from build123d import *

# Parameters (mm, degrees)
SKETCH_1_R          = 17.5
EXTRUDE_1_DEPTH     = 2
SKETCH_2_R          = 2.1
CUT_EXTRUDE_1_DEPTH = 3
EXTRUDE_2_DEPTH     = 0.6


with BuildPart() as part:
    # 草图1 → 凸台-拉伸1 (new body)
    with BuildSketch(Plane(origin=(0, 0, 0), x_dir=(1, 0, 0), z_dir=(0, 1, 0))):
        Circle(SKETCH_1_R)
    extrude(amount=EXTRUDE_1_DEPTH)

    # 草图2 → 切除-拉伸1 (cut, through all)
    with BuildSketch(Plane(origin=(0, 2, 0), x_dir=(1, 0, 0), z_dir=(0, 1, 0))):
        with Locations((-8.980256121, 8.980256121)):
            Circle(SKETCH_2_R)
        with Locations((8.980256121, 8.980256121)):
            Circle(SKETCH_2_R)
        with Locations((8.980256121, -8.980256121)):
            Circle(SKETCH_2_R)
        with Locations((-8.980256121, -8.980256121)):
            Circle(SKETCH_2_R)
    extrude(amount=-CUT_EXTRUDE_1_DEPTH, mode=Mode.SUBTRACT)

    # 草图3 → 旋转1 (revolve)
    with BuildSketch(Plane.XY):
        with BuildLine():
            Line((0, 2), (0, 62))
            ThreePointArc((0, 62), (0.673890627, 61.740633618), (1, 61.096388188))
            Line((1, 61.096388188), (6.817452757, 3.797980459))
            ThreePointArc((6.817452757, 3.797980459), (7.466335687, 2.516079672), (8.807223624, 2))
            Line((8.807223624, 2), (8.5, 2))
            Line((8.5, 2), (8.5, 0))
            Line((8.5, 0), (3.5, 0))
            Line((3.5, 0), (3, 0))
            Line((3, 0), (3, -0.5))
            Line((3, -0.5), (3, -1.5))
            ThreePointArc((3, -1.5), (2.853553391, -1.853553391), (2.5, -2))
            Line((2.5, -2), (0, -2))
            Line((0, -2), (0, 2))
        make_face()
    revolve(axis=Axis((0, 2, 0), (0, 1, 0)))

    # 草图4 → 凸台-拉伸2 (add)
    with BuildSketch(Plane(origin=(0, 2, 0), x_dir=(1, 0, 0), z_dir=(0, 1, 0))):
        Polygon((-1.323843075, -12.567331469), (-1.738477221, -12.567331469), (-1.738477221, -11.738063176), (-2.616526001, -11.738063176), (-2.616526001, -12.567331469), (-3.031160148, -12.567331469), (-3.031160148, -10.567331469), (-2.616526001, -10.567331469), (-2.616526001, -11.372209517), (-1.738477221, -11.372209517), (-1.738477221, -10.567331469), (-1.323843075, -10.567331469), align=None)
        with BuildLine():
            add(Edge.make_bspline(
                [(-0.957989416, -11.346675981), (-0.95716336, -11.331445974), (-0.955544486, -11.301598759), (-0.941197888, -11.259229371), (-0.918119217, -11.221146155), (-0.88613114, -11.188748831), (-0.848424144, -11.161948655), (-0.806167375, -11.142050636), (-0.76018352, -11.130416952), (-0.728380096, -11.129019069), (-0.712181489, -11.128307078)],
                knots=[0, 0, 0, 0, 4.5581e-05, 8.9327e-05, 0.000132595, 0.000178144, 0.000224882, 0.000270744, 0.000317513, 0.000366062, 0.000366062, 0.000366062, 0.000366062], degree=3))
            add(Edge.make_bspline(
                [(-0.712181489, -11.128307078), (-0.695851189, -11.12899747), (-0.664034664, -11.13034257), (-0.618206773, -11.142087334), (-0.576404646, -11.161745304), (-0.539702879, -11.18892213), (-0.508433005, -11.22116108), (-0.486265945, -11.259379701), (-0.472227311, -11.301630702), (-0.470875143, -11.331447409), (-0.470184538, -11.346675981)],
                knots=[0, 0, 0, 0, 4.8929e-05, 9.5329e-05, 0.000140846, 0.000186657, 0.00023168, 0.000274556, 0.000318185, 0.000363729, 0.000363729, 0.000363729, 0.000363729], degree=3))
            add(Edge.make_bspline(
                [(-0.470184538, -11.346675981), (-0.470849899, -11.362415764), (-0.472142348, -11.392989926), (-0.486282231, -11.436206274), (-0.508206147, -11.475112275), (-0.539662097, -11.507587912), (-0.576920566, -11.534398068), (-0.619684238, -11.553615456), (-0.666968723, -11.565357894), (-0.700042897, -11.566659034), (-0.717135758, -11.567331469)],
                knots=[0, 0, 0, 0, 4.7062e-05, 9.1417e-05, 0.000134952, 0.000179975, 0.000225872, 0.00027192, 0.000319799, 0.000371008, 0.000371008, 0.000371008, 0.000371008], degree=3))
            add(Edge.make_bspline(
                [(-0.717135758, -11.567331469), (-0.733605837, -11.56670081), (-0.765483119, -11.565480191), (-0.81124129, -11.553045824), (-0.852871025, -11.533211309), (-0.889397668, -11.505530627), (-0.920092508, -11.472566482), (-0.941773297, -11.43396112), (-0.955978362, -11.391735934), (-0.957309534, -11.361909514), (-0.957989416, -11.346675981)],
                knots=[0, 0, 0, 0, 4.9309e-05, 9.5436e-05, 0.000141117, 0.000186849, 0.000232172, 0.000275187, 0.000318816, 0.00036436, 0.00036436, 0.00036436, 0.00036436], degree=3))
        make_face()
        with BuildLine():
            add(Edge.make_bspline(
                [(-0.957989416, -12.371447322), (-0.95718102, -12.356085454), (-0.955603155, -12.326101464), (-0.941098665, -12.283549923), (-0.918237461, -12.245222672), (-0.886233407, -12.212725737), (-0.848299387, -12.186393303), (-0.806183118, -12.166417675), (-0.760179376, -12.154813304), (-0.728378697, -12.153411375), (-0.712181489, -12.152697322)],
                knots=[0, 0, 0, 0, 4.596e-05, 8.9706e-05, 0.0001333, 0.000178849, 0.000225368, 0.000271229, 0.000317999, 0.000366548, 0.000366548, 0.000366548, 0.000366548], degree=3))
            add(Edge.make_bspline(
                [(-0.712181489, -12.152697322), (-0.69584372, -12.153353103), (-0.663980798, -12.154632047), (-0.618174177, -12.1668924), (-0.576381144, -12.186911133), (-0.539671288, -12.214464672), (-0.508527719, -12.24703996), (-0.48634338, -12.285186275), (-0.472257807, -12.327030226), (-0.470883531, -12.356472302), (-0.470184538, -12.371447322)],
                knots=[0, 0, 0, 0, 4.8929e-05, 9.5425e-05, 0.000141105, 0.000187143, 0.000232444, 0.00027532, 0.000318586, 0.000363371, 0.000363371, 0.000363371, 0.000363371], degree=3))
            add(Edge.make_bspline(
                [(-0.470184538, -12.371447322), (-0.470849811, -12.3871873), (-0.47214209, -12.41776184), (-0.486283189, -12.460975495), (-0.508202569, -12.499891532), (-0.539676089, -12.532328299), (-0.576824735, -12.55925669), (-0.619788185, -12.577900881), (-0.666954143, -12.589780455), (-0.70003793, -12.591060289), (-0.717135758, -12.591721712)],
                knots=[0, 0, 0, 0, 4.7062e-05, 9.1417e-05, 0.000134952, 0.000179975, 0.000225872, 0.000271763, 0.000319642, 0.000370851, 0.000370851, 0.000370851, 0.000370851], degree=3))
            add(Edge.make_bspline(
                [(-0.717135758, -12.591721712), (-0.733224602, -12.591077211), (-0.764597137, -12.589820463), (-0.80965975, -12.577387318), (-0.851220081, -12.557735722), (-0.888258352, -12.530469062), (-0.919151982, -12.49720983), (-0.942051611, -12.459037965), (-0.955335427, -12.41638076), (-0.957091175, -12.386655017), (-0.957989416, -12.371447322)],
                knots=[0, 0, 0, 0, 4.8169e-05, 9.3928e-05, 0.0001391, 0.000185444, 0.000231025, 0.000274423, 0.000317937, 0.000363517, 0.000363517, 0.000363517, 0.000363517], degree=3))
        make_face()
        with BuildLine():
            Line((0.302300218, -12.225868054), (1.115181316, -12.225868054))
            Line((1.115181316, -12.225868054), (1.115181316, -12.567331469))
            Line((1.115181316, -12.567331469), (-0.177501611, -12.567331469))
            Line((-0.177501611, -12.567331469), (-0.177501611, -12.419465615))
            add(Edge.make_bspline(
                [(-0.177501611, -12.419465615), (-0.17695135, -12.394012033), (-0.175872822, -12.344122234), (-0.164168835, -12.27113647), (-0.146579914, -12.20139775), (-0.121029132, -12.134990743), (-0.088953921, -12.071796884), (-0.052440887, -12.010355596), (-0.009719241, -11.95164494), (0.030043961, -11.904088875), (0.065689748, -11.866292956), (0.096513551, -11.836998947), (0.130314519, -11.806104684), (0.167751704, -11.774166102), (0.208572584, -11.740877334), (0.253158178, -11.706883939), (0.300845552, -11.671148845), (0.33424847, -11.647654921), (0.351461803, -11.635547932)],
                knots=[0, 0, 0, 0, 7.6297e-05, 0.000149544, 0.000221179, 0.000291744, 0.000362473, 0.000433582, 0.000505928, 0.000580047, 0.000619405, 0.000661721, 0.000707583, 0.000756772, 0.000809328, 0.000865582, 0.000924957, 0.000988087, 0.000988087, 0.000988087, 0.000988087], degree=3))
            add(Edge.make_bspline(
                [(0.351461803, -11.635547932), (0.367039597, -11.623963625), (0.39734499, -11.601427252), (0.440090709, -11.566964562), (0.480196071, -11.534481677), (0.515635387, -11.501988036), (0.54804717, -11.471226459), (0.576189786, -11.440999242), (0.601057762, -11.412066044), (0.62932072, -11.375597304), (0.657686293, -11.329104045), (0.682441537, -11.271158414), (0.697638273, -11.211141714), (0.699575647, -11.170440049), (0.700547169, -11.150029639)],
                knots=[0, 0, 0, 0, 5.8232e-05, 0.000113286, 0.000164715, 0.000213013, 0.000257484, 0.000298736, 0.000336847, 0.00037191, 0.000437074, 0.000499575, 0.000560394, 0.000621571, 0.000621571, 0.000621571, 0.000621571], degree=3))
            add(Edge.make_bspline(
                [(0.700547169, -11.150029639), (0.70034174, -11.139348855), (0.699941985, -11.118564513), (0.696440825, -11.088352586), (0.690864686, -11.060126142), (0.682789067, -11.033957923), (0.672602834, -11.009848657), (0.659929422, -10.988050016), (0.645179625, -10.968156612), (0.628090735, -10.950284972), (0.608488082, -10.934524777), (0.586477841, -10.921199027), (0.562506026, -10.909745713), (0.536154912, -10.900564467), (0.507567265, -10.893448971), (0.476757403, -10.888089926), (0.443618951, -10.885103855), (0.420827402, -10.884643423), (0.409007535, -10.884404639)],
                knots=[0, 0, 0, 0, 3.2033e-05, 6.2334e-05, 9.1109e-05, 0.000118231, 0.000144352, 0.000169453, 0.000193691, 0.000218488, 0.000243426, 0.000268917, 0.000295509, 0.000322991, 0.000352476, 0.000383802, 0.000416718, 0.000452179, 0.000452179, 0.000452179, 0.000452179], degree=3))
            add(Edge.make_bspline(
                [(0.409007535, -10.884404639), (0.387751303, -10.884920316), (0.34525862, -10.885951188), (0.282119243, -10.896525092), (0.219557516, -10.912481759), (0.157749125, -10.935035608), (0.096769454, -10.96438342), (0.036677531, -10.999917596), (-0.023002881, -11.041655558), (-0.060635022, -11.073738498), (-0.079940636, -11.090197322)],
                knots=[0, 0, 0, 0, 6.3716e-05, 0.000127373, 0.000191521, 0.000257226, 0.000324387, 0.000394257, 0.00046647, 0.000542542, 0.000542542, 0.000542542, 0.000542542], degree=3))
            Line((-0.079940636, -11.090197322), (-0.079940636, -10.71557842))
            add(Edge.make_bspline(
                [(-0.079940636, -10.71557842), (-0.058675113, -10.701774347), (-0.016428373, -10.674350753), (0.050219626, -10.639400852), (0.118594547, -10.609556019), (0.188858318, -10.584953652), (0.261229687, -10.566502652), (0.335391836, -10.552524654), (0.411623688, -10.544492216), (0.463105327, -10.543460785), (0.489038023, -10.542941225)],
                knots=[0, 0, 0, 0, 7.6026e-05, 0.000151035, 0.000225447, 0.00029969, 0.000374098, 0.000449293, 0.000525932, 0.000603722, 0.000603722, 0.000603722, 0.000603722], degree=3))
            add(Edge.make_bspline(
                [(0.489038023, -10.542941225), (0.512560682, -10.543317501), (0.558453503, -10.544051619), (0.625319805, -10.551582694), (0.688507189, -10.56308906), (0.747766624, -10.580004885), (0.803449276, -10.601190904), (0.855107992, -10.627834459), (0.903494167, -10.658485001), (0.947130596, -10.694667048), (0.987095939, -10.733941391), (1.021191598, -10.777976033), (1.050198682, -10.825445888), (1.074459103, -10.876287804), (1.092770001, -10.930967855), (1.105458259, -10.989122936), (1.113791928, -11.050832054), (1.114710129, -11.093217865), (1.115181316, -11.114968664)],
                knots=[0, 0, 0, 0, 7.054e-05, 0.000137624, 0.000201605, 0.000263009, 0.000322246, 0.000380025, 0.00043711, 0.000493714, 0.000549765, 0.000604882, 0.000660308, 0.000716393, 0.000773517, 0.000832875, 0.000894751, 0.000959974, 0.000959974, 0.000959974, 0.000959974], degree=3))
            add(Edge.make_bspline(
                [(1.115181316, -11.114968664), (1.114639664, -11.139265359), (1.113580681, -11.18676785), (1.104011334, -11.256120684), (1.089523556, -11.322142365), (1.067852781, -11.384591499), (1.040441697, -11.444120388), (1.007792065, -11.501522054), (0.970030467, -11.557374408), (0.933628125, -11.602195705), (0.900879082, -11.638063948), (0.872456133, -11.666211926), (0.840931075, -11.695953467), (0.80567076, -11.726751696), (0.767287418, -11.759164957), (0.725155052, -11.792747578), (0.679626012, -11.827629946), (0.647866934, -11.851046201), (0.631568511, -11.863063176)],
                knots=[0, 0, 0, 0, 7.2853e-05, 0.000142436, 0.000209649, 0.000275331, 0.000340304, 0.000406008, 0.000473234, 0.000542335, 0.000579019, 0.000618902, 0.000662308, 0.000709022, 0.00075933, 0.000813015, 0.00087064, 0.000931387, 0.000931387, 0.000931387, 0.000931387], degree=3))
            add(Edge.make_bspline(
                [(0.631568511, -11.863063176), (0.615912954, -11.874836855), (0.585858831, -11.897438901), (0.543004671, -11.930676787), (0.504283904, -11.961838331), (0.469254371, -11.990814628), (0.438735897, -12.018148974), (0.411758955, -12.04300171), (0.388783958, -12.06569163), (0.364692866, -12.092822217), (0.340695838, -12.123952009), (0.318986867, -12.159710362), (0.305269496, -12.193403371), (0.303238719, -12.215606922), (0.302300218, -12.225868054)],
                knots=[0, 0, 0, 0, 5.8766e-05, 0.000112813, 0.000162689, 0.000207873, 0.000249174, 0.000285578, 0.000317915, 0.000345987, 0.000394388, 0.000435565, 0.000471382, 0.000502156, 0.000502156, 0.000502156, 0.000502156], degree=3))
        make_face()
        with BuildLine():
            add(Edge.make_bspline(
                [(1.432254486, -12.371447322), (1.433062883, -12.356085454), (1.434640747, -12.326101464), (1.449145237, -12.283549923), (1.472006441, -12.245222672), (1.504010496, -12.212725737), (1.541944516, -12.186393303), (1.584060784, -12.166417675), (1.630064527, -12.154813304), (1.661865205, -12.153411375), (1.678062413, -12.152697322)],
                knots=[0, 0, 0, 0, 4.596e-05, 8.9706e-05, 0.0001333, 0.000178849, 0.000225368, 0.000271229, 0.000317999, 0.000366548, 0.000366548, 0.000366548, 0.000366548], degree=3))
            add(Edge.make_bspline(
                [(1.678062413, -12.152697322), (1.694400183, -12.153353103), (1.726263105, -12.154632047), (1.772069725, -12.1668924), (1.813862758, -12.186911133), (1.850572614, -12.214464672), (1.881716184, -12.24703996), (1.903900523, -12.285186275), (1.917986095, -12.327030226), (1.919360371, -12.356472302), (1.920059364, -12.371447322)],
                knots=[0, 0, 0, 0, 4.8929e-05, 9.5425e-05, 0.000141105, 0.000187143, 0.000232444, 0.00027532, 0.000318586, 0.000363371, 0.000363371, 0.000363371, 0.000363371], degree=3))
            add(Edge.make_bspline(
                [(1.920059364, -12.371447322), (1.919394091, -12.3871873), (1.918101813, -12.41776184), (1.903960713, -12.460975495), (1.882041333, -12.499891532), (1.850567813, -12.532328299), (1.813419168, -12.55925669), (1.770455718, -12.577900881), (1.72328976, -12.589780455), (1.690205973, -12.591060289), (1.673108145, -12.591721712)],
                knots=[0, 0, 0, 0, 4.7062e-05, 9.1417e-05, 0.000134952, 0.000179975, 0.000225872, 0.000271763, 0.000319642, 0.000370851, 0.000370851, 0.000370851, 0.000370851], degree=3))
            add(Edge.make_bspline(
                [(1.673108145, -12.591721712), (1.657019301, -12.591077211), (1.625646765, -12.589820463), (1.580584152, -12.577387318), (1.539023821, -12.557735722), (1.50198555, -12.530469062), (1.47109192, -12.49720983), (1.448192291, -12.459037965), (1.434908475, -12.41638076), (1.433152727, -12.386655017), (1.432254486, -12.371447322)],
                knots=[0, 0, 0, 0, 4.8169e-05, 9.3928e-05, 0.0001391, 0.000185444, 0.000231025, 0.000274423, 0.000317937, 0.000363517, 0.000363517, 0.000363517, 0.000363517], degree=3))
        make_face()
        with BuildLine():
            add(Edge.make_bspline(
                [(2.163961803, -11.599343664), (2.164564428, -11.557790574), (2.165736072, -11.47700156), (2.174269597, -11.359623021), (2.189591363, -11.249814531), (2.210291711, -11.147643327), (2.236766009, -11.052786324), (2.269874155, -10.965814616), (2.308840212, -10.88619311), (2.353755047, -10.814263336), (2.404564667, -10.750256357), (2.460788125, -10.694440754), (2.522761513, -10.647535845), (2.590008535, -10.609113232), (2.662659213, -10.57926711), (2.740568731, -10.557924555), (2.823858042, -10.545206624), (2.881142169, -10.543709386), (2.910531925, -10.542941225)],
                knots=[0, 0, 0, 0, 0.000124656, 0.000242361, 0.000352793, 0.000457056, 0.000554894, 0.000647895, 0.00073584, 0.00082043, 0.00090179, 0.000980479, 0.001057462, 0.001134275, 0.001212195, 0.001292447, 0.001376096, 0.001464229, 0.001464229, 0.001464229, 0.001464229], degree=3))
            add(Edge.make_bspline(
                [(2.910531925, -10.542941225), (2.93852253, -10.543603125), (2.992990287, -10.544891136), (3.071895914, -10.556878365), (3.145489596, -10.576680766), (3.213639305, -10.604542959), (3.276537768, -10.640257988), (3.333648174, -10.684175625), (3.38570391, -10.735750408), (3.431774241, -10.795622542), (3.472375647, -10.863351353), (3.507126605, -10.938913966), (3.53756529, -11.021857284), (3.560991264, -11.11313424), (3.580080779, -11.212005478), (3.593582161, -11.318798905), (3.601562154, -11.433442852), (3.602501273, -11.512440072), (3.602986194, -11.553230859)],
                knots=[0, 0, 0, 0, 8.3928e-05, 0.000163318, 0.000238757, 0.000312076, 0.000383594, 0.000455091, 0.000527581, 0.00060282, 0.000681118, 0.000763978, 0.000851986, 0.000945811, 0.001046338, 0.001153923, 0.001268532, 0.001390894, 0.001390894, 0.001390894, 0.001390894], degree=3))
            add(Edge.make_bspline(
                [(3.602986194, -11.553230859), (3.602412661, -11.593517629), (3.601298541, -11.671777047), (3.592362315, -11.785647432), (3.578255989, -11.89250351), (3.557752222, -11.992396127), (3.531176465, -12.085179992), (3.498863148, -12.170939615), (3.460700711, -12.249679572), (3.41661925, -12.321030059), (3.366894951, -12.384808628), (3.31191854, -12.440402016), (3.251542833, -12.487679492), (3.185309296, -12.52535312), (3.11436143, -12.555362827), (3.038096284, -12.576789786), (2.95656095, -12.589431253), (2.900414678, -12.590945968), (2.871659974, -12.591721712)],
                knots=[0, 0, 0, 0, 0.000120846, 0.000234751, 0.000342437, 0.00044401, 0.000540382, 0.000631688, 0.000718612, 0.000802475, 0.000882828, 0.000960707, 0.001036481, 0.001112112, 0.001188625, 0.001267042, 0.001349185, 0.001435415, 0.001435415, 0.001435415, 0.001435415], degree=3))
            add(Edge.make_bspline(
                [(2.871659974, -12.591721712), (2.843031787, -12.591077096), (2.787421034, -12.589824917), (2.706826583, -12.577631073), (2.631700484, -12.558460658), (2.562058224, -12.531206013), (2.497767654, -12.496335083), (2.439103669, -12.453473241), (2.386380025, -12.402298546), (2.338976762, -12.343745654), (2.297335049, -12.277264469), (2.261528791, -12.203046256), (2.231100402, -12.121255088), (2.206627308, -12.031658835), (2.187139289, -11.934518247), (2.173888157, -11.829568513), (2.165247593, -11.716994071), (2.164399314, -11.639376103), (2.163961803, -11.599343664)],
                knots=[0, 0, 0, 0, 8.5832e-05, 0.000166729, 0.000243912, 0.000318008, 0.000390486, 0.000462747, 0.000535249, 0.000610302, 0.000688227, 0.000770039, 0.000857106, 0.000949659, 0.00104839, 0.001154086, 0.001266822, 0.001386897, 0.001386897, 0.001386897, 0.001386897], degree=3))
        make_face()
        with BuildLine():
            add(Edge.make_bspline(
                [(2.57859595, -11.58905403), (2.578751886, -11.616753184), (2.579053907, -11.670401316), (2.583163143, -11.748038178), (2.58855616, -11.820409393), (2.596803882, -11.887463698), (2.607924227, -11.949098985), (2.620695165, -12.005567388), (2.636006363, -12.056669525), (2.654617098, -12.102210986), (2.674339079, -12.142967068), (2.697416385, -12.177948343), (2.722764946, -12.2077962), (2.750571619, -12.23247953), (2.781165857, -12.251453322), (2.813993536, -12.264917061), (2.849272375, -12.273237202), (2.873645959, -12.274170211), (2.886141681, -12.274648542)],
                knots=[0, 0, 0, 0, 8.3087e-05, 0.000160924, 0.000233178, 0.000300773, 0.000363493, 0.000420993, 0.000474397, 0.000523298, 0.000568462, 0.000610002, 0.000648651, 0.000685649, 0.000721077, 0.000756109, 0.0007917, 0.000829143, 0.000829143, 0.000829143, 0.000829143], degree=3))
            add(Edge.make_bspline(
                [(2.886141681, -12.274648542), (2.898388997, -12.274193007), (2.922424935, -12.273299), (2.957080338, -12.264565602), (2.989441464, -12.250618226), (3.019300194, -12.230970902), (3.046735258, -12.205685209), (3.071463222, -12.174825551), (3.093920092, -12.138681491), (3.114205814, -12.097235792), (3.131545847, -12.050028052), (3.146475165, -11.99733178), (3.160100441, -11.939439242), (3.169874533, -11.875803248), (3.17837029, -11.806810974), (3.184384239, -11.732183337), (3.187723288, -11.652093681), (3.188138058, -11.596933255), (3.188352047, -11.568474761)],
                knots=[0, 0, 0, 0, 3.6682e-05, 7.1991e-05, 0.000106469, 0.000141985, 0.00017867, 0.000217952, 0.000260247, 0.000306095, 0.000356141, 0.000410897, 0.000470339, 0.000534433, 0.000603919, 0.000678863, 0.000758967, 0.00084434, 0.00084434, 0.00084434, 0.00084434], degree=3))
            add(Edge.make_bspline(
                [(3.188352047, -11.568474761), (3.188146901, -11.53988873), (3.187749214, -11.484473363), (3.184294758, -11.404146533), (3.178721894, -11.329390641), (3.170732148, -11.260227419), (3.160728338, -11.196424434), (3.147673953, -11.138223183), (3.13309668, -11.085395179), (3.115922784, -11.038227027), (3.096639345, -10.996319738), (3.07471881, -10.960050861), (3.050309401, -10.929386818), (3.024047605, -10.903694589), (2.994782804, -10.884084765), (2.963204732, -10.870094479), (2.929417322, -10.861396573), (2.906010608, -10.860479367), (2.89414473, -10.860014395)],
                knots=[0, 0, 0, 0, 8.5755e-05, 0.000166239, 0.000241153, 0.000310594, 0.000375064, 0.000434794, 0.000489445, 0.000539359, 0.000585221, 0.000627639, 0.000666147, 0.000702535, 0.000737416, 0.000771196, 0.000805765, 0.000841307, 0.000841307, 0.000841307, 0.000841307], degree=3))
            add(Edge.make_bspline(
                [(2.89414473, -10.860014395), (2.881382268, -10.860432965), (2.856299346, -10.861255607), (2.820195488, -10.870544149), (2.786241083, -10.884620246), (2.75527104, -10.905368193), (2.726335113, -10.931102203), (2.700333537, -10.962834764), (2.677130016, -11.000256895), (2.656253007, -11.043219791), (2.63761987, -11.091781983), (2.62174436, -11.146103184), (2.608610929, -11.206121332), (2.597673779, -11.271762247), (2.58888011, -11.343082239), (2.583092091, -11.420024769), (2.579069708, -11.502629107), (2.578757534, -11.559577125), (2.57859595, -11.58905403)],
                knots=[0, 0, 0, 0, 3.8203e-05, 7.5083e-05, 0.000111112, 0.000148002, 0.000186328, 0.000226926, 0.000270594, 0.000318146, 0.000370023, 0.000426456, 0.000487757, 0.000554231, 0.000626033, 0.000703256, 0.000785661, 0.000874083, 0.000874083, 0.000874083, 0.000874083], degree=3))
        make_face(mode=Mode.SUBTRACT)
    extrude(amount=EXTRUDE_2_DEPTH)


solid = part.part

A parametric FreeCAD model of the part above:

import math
import FreeCAD as App
import Part
import Sketcher

V = App.Vector


def add_polygon(sketch, points):
    """Adds a closed chain of lines whose ends are joined by coincident constraints."""
    first, n = sketch.GeometryCount, len(points)
    for a, b in zip(points, points[1:] + points[:1]):
        sketch.addGeometry(Part.LineSegment(App.Vector(*a, 0), App.Vector(*b, 0)), False)
    for i in range(n):
        sketch.addConstraint(Sketcher.Constraint("Coincident", first + i, 2, first + (i + 1) % n, 1))

doc = App.newDocument("Part")
params = doc.addObject("Spreadsheet::Sheet", "Params")
for row, (alias, value) in enumerate([
    ("sketch1_diameter", "35 mm"),
    ("pad1_length", "2 mm"),
    ("sketch2_diameter", "4.2 mm"),
    ("sketch3_radius", "2 mm"),
    ("sketch3_radius2", "0.5 mm"),
    ("sketch3_height", "64 mm"),
    ("sketch3_height2", "2 mm"),
    ("sketch3_width", "2.5 mm"),
    ("revolution_angle", "360 deg"),
    ("sketch4_height", "2 mm"),
    ("pad2_length", "0.6 mm"),
], start=1):
    params.set(f"A{row}", alias)
    params.set(f"B{row}", "=" + value)
    params.setAlias(f"B{row}", alias)

body = doc.addObject("PartDesign::Body", "Body")

sketch1 = body.newObject("Sketcher::SketchObject", "Sketch")
sketch1.AttachmentSupport = (doc.getObject("XZ_Plane"), [""])
sketch1.MapMode = "FlatFace"
sketch1.addGeometry(Part.Circle(V(0, 0, 0), V(0, 0, 1), 17.5), False)
sketch1.addConstraint([
    Sketcher.Constraint("Coincident", 0, 3, -1, 1),
    Sketcher.Constraint("Diameter", 0, 35.0),
])
sketch1.setExpression("Constraints[1]", "Params.sketch1_diameter")
pad1 = body.newObject("PartDesign::Pad", "Pad")
pad1.Profile = sketch1
pad1.setExpression("Length", "Params.pad1_length")
pad1.Reversed = True

sketch2 = body.newObject("Sketcher::SketchObject", "Sketch001")
sketch2.AttachmentSupport = (doc.getObject("XZ_Plane"), [""])
sketch2.MapMode = "FlatFace"
sketch2.AttachmentOffset = App.Placement(V(0, 0, -2), App.Rotation())
sketch2.addGeometry([
    Part.Circle(V(-8.980256, -8.980256, 0), V(0, 0, 1), 2.1),
    Part.Circle(V(8.980256, -8.980256, 0), V(0, 0, 1), 2.1),
    Part.Circle(V(8.980256, 8.980256, 0), V(0, 0, 1), 2.1),
    Part.Circle(V(-8.980256, 8.980256, 0), V(0, 0, 1), 2.1),
], False)
sketch2.addConstraint([
    Sketcher.Constraint("Equal", 0, 1),
    Sketcher.Constraint("Equal", 1, 2),
    Sketcher.Constraint("Equal", 2, 3),
    Sketcher.Constraint("Symmetric", 0, 3, 2, 3, -1, 1),
    Sketcher.Constraint("Symmetric", 1, 3, 3, 3, -1, 1),
    Sketcher.Constraint("Symmetric", 0, 3, 1, 3, -2),
    Sketcher.Constraint("Diameter", 0, 4.2),
    Sketcher.Constraint("DistanceX", 0, 3, -1, 1, 8.980256),
    Sketcher.Constraint("DistanceY", 0, 3, -1, 1, 8.980256),
])
sketch2.setExpression("Constraints[6]", "Params.sketch2_diameter")
pocket1 = body.newObject("PartDesign::Pocket", "Pocket")
pocket1.Profile = sketch2
pocket1.Type = "ThroughAll"
pocket1.Reversed = True

sketch3 = body.newObject("Sketcher::SketchObject", "Sketch002")
sketch3.AttachmentSupport = (doc.getObject("XY_Plane"), [""])
sketch3.MapMode = "FlatFace"
sketch3.addGeometry([
    Part.ArcOfCircle(Part.Circle(V(0, 60.994859, 0), V(0, 0, 1), 1.005141), math.radians(5.79732), math.radians(90)),
    Part.LineSegment(V(0, 62, 0), V(0, -2, 0)),
    Part.LineSegment(V(0, -2, 0), V(2.5, -2, 0)),
    Part.ArcOfCircle(Part.Circle(V(2.5, -1.5, 0), V(0, 0, 1), 0.5), math.radians(-90), math.radians(0)),
    Part.LineSegment(V(3, -1.5, 0), V(3, 0, 0)),
    Part.LineSegment(V(3, 0, 0), V(8.5, 0, 0)),
    Part.LineSegment(V(8.5, 0, 0), V(8.5, 2, 0)),
    Part.LineSegment(V(8.5, 2, 0), V(8.807224, 2, 0)),
    Part.ArcOfCircle(Part.Circle(V(8.807224, 4, 0), V(0, 0, 1), 2), math.radians(-174.20268), math.radians(-90)),
    Part.LineSegment(V(6.817453, 3.79798, 0), V(1, 61.096388, 0)),
], False)
sketch3.addConstraint([
    Sketcher.Constraint("Coincident", 0, 2, 1, 1),
    Sketcher.Constraint("Coincident", 1, 2, 2, 1),
    Sketcher.Constraint("Tangent", 2, 2, 3, 1),
    Sketcher.Constraint("Tangent", 3, 2, 4, 1),
    Sketcher.Constraint("Coincident", 4, 2, 5, 1),
    Sketcher.Constraint("Coincident", 5, 2, 6, 1),
    Sketcher.Constraint("Coincident", 6, 2, 7, 1),
    Sketcher.Constraint("Tangent", 7, 2, 8, 2),
    Sketcher.Constraint("Tangent", 8, 1, 9, 1),
    Sketcher.Constraint("Tangent", 9, 2, 0, 1),
    Sketcher.Constraint("Vertical", 1),
    Sketcher.Constraint("Horizontal", 2),
    Sketcher.Constraint("Vertical", 4),
    Sketcher.Constraint("Horizontal", 5),
    Sketcher.Constraint("Vertical", 6),
    Sketcher.Constraint("Horizontal", 7),
    Sketcher.Constraint("PointOnObject", 0, 3, -2),
    Sketcher.Constraint("PointOnObject", 0, 2, -2),
    Sketcher.Constraint("PointOnObject", 4, 2, -1),
    Sketcher.Constraint("Radius", 8, 2.0),
    Sketcher.Constraint("Radius", 3, 0.5),
    Sketcher.Constraint("DistanceY", 1, 2, 1, 1, 64.0),
    Sketcher.Constraint("DistanceY", 6, 1, 6, 2, 2.0),
    Sketcher.Constraint("DistanceX", 2, 1, 2, 2, 2.5),
    Sketcher.Constraint("DistanceX", 5, 1, 5, 2, 5.5),
    Sketcher.Constraint("DistanceY", 4, 1, 4, 2, 1.5),
    Sketcher.Constraint("DistanceX", -1, 1, 9, 2, 1.0),
    Sketcher.Constraint("Distance", 9, 57.592971),
])
sketch3.setExpression("Constraints[19]", "Params.sketch3_radius")
sketch3.setExpression("Constraints[20]", "Params.sketch3_radius2")
sketch3.setExpression("Constraints[21]", "Params.sketch3_height")
sketch3.setExpression("Constraints[22]", "Params.sketch3_height2")
sketch3.setExpression("Constraints[23]", "Params.sketch3_width")
revolution = body.newObject("PartDesign::Revolution", "Revolution")
revolution.Profile = sketch3
revolution.ReferenceAxis = (sketch3, ["V_Axis"])
revolution.setExpression("Angle", "Params.revolution_angle")

sketch4 = body.newObject("Sketcher::SketchObject", "Sketch003")
sketch4.AttachmentSupport = (doc.getObject("XZ_Plane"), [""])
sketch4.MapMode = "FlatFace"
sketch4.AttachmentOffset = App.Placement(V(0, 0, -2), App.Rotation())
add_polygon(sketch4, [(-1.738477, 12.567331), (-1.323843, 12.567331), (-1.323843, 10.567331), (-1.738477, 10.567331), (-1.738477, 11.37221), (-2.616526, 11.37221), (-2.616526, 10.567331), (-3.03116, 10.567331), (-3.03116, 12.567331), (-2.616526, 12.567331), (-2.616526, 11.738063), (-1.738477, 11.738063)])
sketch4.addGeometry(Part.BSplineCurve([V(-0.957989, 11.346676, 0), V(-0.957163, 11.331446, 0), V(-0.955544, 11.301599, 0), V(-0.941198, 11.259229, 0), V(-0.918119, 11.221146, 0), V(-0.886131, 11.188749, 0), V(-0.848424, 11.161949, 0), V(-0.806167, 11.142051, 0), V(-0.760184, 11.130417, 0), V(-0.72838, 11.129019, 0), V(-0.712181, 11.128307, 0)], [4, 1, 1, 1, 1, 1, 1, 1, 4], [0, 0.000045581, 0.000089327, 0.000132595, 0.000178144, 0.000224882, 0.000270744, 0.000317513, 0.000366062], False, 3, [1, 1, 1, 1, 1, 1, 1, 1, 1, 1, 1], False), False)
sketch4.addGeometry(Part.BSplineCurve([V(-0.717136, 11.567331, 0), V(-0.733606, 11.566701, 0), V(-0.765483, 11.56548, 0), V(-0.811241, 11.553046, 0), V(-0.852871, 11.533211, 0), V(-0.889398, 11.505531, 0), V(-0.920093, 11.472566, 0), V(-0.941773, 11.433961, 0), V(-0.955978, 11.391736, 0), V(-0.95731, 11.36191, 0), V(-0.957989, 11.346676, 0)], [4, 1, 1, 1, 1, 1, 1, 1, 4], [0, 0.000049309, 0.000095436, 0.000141117, 0.000186849, 0.000232172, 0.000275187, 0.000318816, 0.00036436], False, 3, [1, 1, 1, 1, 1, 1, 1, 1, 1, 1, 1], False), False)
sketch4.addGeometry(Part.BSplineCurve([V(-0.470185, 11.346676, 0), V(-0.47085, 11.362416, 0), V(-0.472142, 11.39299, 0), V(-0.486282, 11.436206, 0), V(-0.508206, 11.475112, 0), V(-0.539662, 11.507588, 0), V(-0.576921, 11.534398, 0), V(-0.619684, 11.553615, 0), V(-0.666969, 11.565358, 0), V(-0.700043, 11.566659, 0), V(-0.717136, 11.567331, 0)], [4, 1, 1, 1, 1, 1, 1, 1, 4], [0, 0.000047062, 0.000091417, 0.000134952, 0.000179975, 0.000225872, 0.00027192, 0.000319799, 0.000371008], False, 3, [1, 1, 1, 1, 1, 1, 1, 1, 1, 1, 1], False), False)
sketch4.addGeometry(Part.BSplineCurve([V(-0.712181, 11.128307, 0), V(-0.695851, 11.128997, 0), V(-0.664035, 11.130343, 0), V(-0.618207, 11.142087, 0), V(-0.576405, 11.161745, 0), V(-0.539703, 11.188922, 0), V(-0.508433, 11.221161, 0), V(-0.486266, 11.25938, 0), V(-0.472227, 11.301631, 0), V(-0.470875, 11.331447, 0), V(-0.470185, 11.346676, 0)], [4, 1, 1, 1, 1, 1, 1, 1, 4], [0, 0.000048929, 0.000095329, 0.000140846, 0.000186657, 0.00023168, 0.000274556, 0.000318185, 0.000363729], False, 3, [1, 1, 1, 1, 1, 1, 1, 1, 1, 1, 1], False), False)
sketch4.addGeometry(Part.BSplineCurve([V(-0.957989, 12.371447, 0), V(-0.957181, 12.356085, 0), V(-0.955603, 12.326101, 0), V(-0.941099, 12.28355, 0), V(-0.918237, 12.245223, 0), V(-0.886233, 12.212726, 0), V(-0.848299, 12.186393, 0), V(-0.806183, 12.166418, 0), V(-0.760179, 12.154813, 0), V(-0.728379, 12.153411, 0), V(-0.712181, 12.152697, 0)], [4, 1, 1, 1, 1, 1, 1, 1, 4], [0, 0.00004596, 0.000089706, 0.0001333, 0.000178849, 0.000225368, 0.000271229, 0.000317999, 0.000366548], False, 3, [1, 1, 1, 1, 1, 1, 1, 1, 1, 1, 1], False), False)
sketch4.addGeometry(Part.BSplineCurve([V(-0.717136, 12.591722, 0), V(-0.733225, 12.591077, 0), V(-0.764597, 12.58982, 0), V(-0.80966, 12.577387, 0), V(-0.85122, 12.557736, 0), V(-0.888258, 12.530469, 0), V(-0.919152, 12.49721, 0), V(-0.942052, 12.459038, 0), V(-0.955335, 12.416381, 0), V(-0.957091, 12.386655, 0), V(-0.957989, 12.371447, 0)], [4, 1, 1, 1, 1, 1, 1, 1, 4], [0, 0.000048169, 0.000093928, 0.0001391, 0.000185444, 0.000231025, 0.000274423, 0.000317937, 0.000363517], False, 3, [1, 1, 1, 1, 1, 1, 1, 1, 1, 1, 1], False), False)
sketch4.addGeometry(Part.BSplineCurve([V(-0.470185, 12.371447, 0), V(-0.47085, 12.387187, 0), V(-0.472142, 12.417762, 0), V(-0.486283, 12.460975, 0), V(-0.508203, 12.499892, 0), V(-0.539676, 12.532328, 0), V(-0.576825, 12.559257, 0), V(-0.619788, 12.577901, 0), V(-0.666954, 12.58978, 0), V(-0.700038, 12.59106, 0), V(-0.717136, 12.591722, 0)], [4, 1, 1, 1, 1, 1, 1, 1, 4], [0, 0.000047062, 0.000091417, 0.000134952, 0.000179975, 0.000225872, 0.000271763, 0.000319642, 0.000370851], False, 3, [1, 1, 1, 1, 1, 1, 1, 1, 1, 1, 1], False), False)
sketch4.addGeometry(Part.BSplineCurve([V(-0.712181, 12.152697, 0), V(-0.695844, 12.153353, 0), V(-0.663981, 12.154632, 0), V(-0.618174, 12.166892, 0), V(-0.576381, 12.186911, 0), V(-0.539671, 12.214465, 0), V(-0.508528, 12.24704, 0), V(-0.486343, 12.285186, 0), V(-0.472258, 12.32703, 0), V(-0.470884, 12.356472, 0), V(-0.470185, 12.371447, 0)], [4, 1, 1, 1, 1, 1, 1, 1, 4], [0, 0.000048929, 0.000095425, 0.000141105, 0.000187143, 0.000232444, 0.00027532, 0.000318586, 0.000363371], False, 3, [1, 1, 1, 1, 1, 1, 1, 1, 1, 1, 1], False), False)
sketch4.addGeometry(Part.LineSegment(V(1.115181, 12.225868, 0), V(0.3023, 12.225868, 0)), False)
sketch4.addGeometry(Part.BSplineCurve([V(0.631569, 11.863063, 0), V(0.615913, 11.874837, 0), V(0.585859, 11.897439, 0), V(0.543005, 11.930677, 0), V(0.504284, 11.961838, 0), V(0.469254, 11.990815, 0), V(0.438736, 12.018149, 0), V(0.411759, 12.043002, 0), V(0.388784, 12.065692, 0), V(0.364693, 12.092822, 0), V(0.340696, 12.123952, 0), V(0.318987, 12.15971, 0), V(0.305269, 12.193403, 0), V(0.303239, 12.215607, 0), V(0.3023, 12.225868, 0)], [4, 1, 1, 1, 1, 1, 1, 1, 1, 1, 1, 1, 4], [0, 0.000058766, 0.000112813, 0.000162689, 0.000207873, 0.000249174, 0.000285578, 0.000317915, 0.000345987, 0.000394388, 0.000435565, 0.000471382, 0.000502156], False, 3, [1, 1, 1, 1, 1, 1, 1, 1, 1, 1, 1, 1, 1, 1, 1], False), False)
sketch4.addGeometry(Part.BSplineCurve([V(1.115181, 11.114969, 0), V(1.11464, 11.139265, 0), V(1.113581, 11.186768, 0), V(1.104011, 11.256121, 0), V(1.089524, 11.322142, 0), V(1.067853, 11.384591, 0), V(1.040442, 11.44412, 0), V(1.007792, 11.501522, 0), V(0.97003, 11.557374, 0), V(0.933628, 11.602196, 0), V(0.900879, 11.638064, 0), V(0.872456, 11.666212, 0), V(0.840931, 11.695953, 0), V(0.805671, 11.726752, 0), V(0.767287, 11.759165, 0), V(0.725155, 11.792748, 0), V(0.679626, 11.82763, 0), V(0.647867, 11.851046, 0), V(0.631569, 11.863063, 0)], [4, 1, 1, 1, 1, 1, 1, 1, 1, 1, 1, 1, 1, 1, 1, 1, 4], [0, 0.000072853, 0.000142436, 0.000209649, 0.000275331, 0.000340304, 0.000406008, 0.000473234, 0.000542335, 0.000579019, 0.000618902, 0.000662308, 0.000709022, 0.00075933, 0.000813015, 0.00087064, 0.000931387], False, 3, [1, 1, 1, 1, 1, 1, 1, 1, 1, 1, 1, 1, 1, 1, 1, 1, 1, 1, 1], False), False)
sketch4.addGeometry(Part.BSplineCurve([V(0.489038, 10.542941, 0), V(0.512561, 10.543318, 0), V(0.558454, 10.544052, 0), V(0.62532, 10.551583, 0), V(0.688507, 10.563089, 0), V(0.747767, 10.580005, 0), V(0.803449, 10.601191, 0), V(0.855108, 10.627834, 0), V(0.903494, 10.658485, 0), V(0.947131, 10.694667, 0), V(0.987096, 10.733941, 0), V(1.021192, 10.777976, 0), V(1.050199, 10.825446, 0), V(1.074459, 10.876288, 0), V(1.09277, 10.930968, 0), V(1.105458, 10.989123, 0), V(1.113792, 11.050832, 0), V(1.11471, 11.093218, 0), V(1.115181, 11.114969, 0)], [4, 1, 1, 1, 1, 1, 1, 1, 1, 1, 1, 1, 1, 1, 1, 1, 4], [0, 0.00007054, 0.000137624, 0.000201605, 0.000263009, 0.000322246, 0.000380025, 0.00043711, 0.000493714, 0.000549765, 0.000604882, 0.000660308, 0.000716393, 0.000773517, 0.000832875, 0.000894751, 0.000959974], False, 3, [1, 1, 1, 1, 1, 1, 1, 1, 1, 1, 1, 1, 1, 1, 1, 1, 1, 1, 1], False), False)
sketch4.addGeometry(Part.BSplineCurve([V(-0.079941, 10.715578, 0), V(-0.058675, 10.701774, 0), V(-0.016428, 10.674351, 0), V(0.05022, 10.639401, 0), V(0.118595, 10.609556, 0), V(0.188858, 10.584954, 0), V(0.26123, 10.566503, 0), V(0.335392, 10.552525, 0), V(0.411624, 10.544492, 0), V(0.463105, 10.543461, 0), V(0.489038, 10.542941, 0)], [4, 1, 1, 1, 1, 1, 1, 1, 4], [0, 0.000076026, 0.000151035, 0.000225447, 0.00029969, 0.000374098, 0.000449293, 0.000525932, 0.000603722], False, 3, [1, 1, 1, 1, 1, 1, 1, 1, 1, 1, 1], False), False)
sketch4.addGeometry(Part.LineSegment(V(-0.079941, 10.715578, 0), V(-0.079941, 11.090197, 0)), False)
sketch4.addGeometry(Part.BSplineCurve([V(0.409008, 10.884405, 0), V(0.387751, 10.88492, 0), V(0.345259, 10.885951, 0), V(0.282119, 10.896525, 0), V(0.219558, 10.912482, 0), V(0.157749, 10.935036, 0), V(0.096769, 10.964383, 0), V(0.036678, 10.999918, 0), V(-0.023003, 11.041656, 0), V(-0.060635, 11.073738, 0), V(-0.079941, 11.090197, 0)], [4, 1, 1, 1, 1, 1, 1, 1, 4], [0, 0.000063716, 0.000127373, 0.000191521, 0.000257226, 0.000324387, 0.000394257, 0.00046647, 0.000542542], False, 3, [1, 1, 1, 1, 1, 1, 1, 1, 1, 1, 1], False), False)
sketch4.addGeometry(Part.BSplineCurve([V(0.700547, 11.15003, 0), V(0.700342, 11.139349, 0), V(0.699942, 11.118565, 0), V(0.696441, 11.088353, 0), V(0.690865, 11.060126, 0), V(0.682789, 11.033958, 0), V(0.672603, 11.009849, 0), V(0.659929, 10.98805, 0), V(0.64518, 10.968157, 0), V(0.628091, 10.950285, 0), V(0.608488, 10.934525, 0), V(0.586478, 10.921199, 0), V(0.562506, 10.909746, 0), V(0.536155, 10.900564, 0), V(0.507567, 10.893449, 0), V(0.476757, 10.88809, 0), V(0.443619, 10.885104, 0), V(0.420827, 10.884643, 0), V(0.409008, 10.884405, 0)], [4, 1, 1, 1, 1, 1, 1, 1, 1, 1, 1, 1, 1, 1, 1, 1, 4], [0, 0.000032033, 0.000062334, 0.000091109, 0.000118231, 0.000144352, 0.000169453, 0.000193691, 0.000218488, 0.000243426, 0.000268917, 0.000295509, 0.000322991, 0.000352476, 0.000383802, 0.000416718, 0.000452179], False, 3, [1, 1, 1, 1, 1, 1, 1, 1, 1, 1, 1, 1, 1, 1, 1, 1, 1, 1, 1], False), False)
sketch4.addGeometry(Part.BSplineCurve([V(0.351462, 11.635548, 0), V(0.36704, 11.623964, 0), V(0.397345, 11.601427, 0), V(0.440091, 11.566965, 0), V(0.480196, 11.534482, 0), V(0.515635, 11.501988, 0), V(0.548047, 11.471226, 0), V(0.57619, 11.440999, 0), V(0.601058, 11.412066, 0), V(0.629321, 11.375597, 0), V(0.657686, 11.329104, 0), V(0.682442, 11.271158, 0), V(0.697638, 11.211142, 0), V(0.699576, 11.17044, 0), V(0.700547, 11.15003, 0)], [4, 1, 1, 1, 1, 1, 1, 1, 1, 1, 1, 1, 4], [0, 0.000058232, 0.000113286, 0.000164715, 0.000213013, 0.000257484, 0.000298736, 0.000336847, 0.00037191, 0.000437074, 0.000499575, 0.000560394, 0.000621571], False, 3, [1, 1, 1, 1, 1, 1, 1, 1, 1, 1, 1, 1, 1, 1, 1], False), False)
sketch4.addGeometry(Part.BSplineCurve([V(-0.177502, 12.419466, 0), V(-0.176951, 12.394012, 0), V(-0.175873, 12.344122, 0), V(-0.164169, 12.271136, 0), V(-0.14658, 12.201398, 0), V(-0.121029, 12.134991, 0), V(-0.088954, 12.071797, 0), V(-0.052441, 12.010356, 0), V(-0.009719, 11.951645, 0), V(0.030044, 11.904089, 0), V(0.06569, 11.866293, 0), V(0.096514, 11.836999, 0), V(0.130315, 11.806105, 0), V(0.167752, 11.774166, 0), V(0.208573, 11.740877, 0), V(0.253158, 11.706884, 0), V(0.300846, 11.671149, 0), V(0.334248, 11.647655, 0), V(0.351462, 11.635548, 0)], [4, 1, 1, 1, 1, 1, 1, 1, 1, 1, 1, 1, 1, 1, 1, 1, 4], [0, 0.000076297, 0.000149544, 0.000221179, 0.000291744, 0.000362473, 0.000433582, 0.000505928, 0.000580047, 0.000619405, 0.000661721, 0.000707583, 0.000756772, 0.000809328, 0.000865582, 0.000924957, 0.000988087], False, 3, [1, 1, 1, 1, 1, 1, 1, 1, 1, 1, 1, 1, 1, 1, 1, 1, 1, 1, 1], False), False)
sketch4.addGeometry(Part.LineSegment(V(-0.177502, 12.419466, 0), V(-0.177502, 12.567331, 0)), False)
sketch4.addGeometry(Part.LineSegment(V(-0.177502, 12.567331, 0), V(1.115181, 12.567331, 0)), False)
sketch4.addGeometry(Part.LineSegment(V(1.115181, 12.567331, 0), V(1.115181, 12.225868, 0)), False)
sketch4.addGeometry(Part.BSplineCurve([V(1.432254, 12.371447, 0), V(1.433063, 12.356085, 0), V(1.434641, 12.326101, 0), V(1.449145, 12.28355, 0), V(1.472006, 12.245223, 0), V(1.50401, 12.212726, 0), V(1.541945, 12.186393, 0), V(1.584061, 12.166418, 0), V(1.630065, 12.154813, 0), V(1.661865, 12.153411, 0), V(1.678062, 12.152697, 0)], [4, 1, 1, 1, 1, 1, 1, 1, 4], [0, 0.00004596, 0.000089706, 0.0001333, 0.000178849, 0.000225368, 0.000271229, 0.000317999, 0.000366548], False, 3, [1, 1, 1, 1, 1, 1, 1, 1, 1, 1, 1], False), False)
sketch4.addGeometry(Part.BSplineCurve([V(1.673108, 12.591722, 0), V(1.657019, 12.591077, 0), V(1.625647, 12.58982, 0), V(1.580584, 12.577387, 0), V(1.539024, 12.557736, 0), V(1.501986, 12.530469, 0), V(1.471092, 12.49721, 0), V(1.448192, 12.459038, 0), V(1.434908, 12.416381, 0), V(1.433153, 12.386655, 0), V(1.432254, 12.371447, 0)], [4, 1, 1, 1, 1, 1, 1, 1, 4], [0, 0.000048169, 0.000093928, 0.0001391, 0.000185444, 0.000231025, 0.000274423, 0.000317937, 0.000363517], False, 3, [1, 1, 1, 1, 1, 1, 1, 1, 1, 1, 1], False), False)
sketch4.addGeometry(Part.BSplineCurve([V(1.920059, 12.371447, 0), V(1.919394, 12.387187, 0), V(1.918102, 12.417762, 0), V(1.903961, 12.460975, 0), V(1.882041, 12.499892, 0), V(1.850568, 12.532328, 0), V(1.813419, 12.559257, 0), V(1.770456, 12.577901, 0), V(1.72329, 12.58978, 0), V(1.690206, 12.59106, 0), V(1.673108, 12.591722, 0)], [4, 1, 1, 1, 1, 1, 1, 1, 4], [0, 0.000047062, 0.000091417, 0.000134952, 0.000179975, 0.000225872, 0.000271763, 0.000319642, 0.000370851], False, 3, [1, 1, 1, 1, 1, 1, 1, 1, 1, 1, 1], False), False)
sketch4.addGeometry(Part.BSplineCurve([V(1.678062, 12.152697, 0), V(1.6944, 12.153353, 0), V(1.726263, 12.154632, 0), V(1.77207, 12.166892, 0), V(1.813863, 12.186911, 0), V(1.850573, 12.214465, 0), V(1.881716, 12.24704, 0), V(1.903901, 12.285186, 0), V(1.917986, 12.32703, 0), V(1.91936, 12.356472, 0), V(1.920059, 12.371447, 0)], [4, 1, 1, 1, 1, 1, 1, 1, 4], [0, 0.000048929, 0.000095425, 0.000141105, 0.000187143, 0.000232444, 0.00027532, 0.000318586, 0.000363371], False, 3, [1, 1, 1, 1, 1, 1, 1, 1, 1, 1, 1], False), False)
sketch4.addGeometry(Part.BSplineCurve([V(2.163962, 11.599344, 0), V(2.164564, 11.557791, 0), V(2.165736, 11.477002, 0), V(2.17427, 11.359623, 0), V(2.189591, 11.249815, 0), V(2.210292, 11.147643, 0), V(2.236766, 11.052786, 0), V(2.269874, 10.965815, 0), V(2.30884, 10.886193, 0), V(2.353755, 10.814263, 0), V(2.404565, 10.750256, 0), V(2.460788, 10.694441, 0), V(2.522762, 10.647536, 0), V(2.590009, 10.609113, 0), V(2.662659, 10.579267, 0), V(2.740569, 10.557925, 0), V(2.823858, 10.545207, 0), V(2.881142, 10.543709, 0), V(2.910532, 10.542941, 0)], [4, 1, 1, 1, 1, 1, 1, 1, 1, 1, 1, 1, 1, 1, 1, 1, 4], [0, 0.000124656, 0.000242361, 0.000352793, 0.000457056, 0.000554894, 0.000647895, 0.00073584, 0.00082043, 0.00090179, 0.000980479, 0.001057462, 0.001134275, 0.001212195, 0.001292447, 0.001376096, 0.001464229], False, 3, [1, 1, 1, 1, 1, 1, 1, 1, 1, 1, 1, 1, 1, 1, 1, 1, 1, 1, 1], False), False)
sketch4.addGeometry(Part.BSplineCurve([V(2.87166, 12.591722, 0), V(2.843032, 12.591077, 0), V(2.787421, 12.589825, 0), V(2.706827, 12.577631, 0), V(2.6317, 12.558461, 0), V(2.562058, 12.531206, 0), V(2.497768, 12.496335, 0), V(2.439104, 12.453473, 0), V(2.38638, 12.402299, 0), V(2.338977, 12.343746, 0), V(2.297335, 12.277264, 0), V(2.261529, 12.203046, 0), V(2.2311, 12.121255, 0), V(2.206627, 12.031659, 0), V(2.187139, 11.934518, 0), V(2.173888, 11.829569, 0), V(2.165248, 11.716994, 0), V(2.164399, 11.639376, 0), V(2.163962, 11.599344, 0)], [4, 1, 1, 1, 1, 1, 1, 1, 1, 1, 1, 1, 1, 1, 1, 1, 4], [0, 0.000085832, 0.000166729, 0.000243912, 0.000318008, 0.000390486, 0.000462747, 0.000535249, 0.000610302, 0.000688227, 0.000770039, 0.000857106, 0.000949659, 0.00104839, 0.001154086, 0.001266822, 0.001386897], False, 3, [1, 1, 1, 1, 1, 1, 1, 1, 1, 1, 1, 1, 1, 1, 1, 1, 1, 1, 1], False), False)
sketch4.addGeometry(Part.BSplineCurve([V(3.602986, 11.553231, 0), V(3.602413, 11.593518, 0), V(3.601299, 11.671777, 0), V(3.592362, 11.785647, 0), V(3.578256, 11.892504, 0), V(3.557752, 11.992396, 0), V(3.531176, 12.08518, 0), V(3.498863, 12.17094, 0), V(3.460701, 12.24968, 0), V(3.416619, 12.32103, 0), V(3.366895, 12.384809, 0), V(3.311919, 12.440402, 0), V(3.251543, 12.487679, 0), V(3.185309, 12.525353, 0), V(3.114361, 12.555363, 0), V(3.038096, 12.57679, 0), V(2.956561, 12.589431, 0), V(2.900415, 12.590946, 0), V(2.87166, 12.591722, 0)], [4, 1, 1, 1, 1, 1, 1, 1, 1, 1, 1, 1, 1, 1, 1, 1, 4], [0, 0.000120846, 0.000234751, 0.000342437, 0.00044401, 0.000540382, 0.000631688, 0.000718612, 0.000802475, 0.000882828, 0.000960707, 0.001036481, 0.001112112, 0.001188625, 0.001267042, 0.001349185, 0.001435415], False, 3, [1, 1, 1, 1, 1, 1, 1, 1, 1, 1, 1, 1, 1, 1, 1, 1, 1, 1, 1], False), False)
sketch4.addGeometry(Part.BSplineCurve([V(2.910532, 10.542941, 0), V(2.938523, 10.543603, 0), V(2.99299, 10.544891, 0), V(3.071896, 10.556878, 0), V(3.14549, 10.576681, 0), V(3.213639, 10.604543, 0), V(3.276538, 10.640258, 0), V(3.333648, 10.684176, 0), V(3.385704, 10.73575, 0), V(3.431774, 10.795623, 0), V(3.472376, 10.863351, 0), V(3.507127, 10.938914, 0), V(3.537565, 11.021857, 0), V(3.560991, 11.113134, 0), V(3.580081, 11.212005, 0), V(3.593582, 11.318799, 0), V(3.601562, 11.433443, 0), V(3.602501, 11.51244, 0), V(3.602986, 11.553231, 0)], [4, 1, 1, 1, 1, 1, 1, 1, 1, 1, 1, 1, 1, 1, 1, 1, 4], [0, 0.000083928, 0.000163318, 0.000238757, 0.000312076, 0.000383594, 0.000455091, 0.000527581, 0.00060282, 0.000681118, 0.000763978, 0.000851986, 0.000945811, 0.001046338, 0.001153923, 0.001268532, 0.001390894], False, 3, [1, 1, 1, 1, 1, 1, 1, 1, 1, 1, 1, 1, 1, 1, 1, 1, 1, 1, 1], False), False)
sketch4.addGeometry(Part.BSplineCurve([V(2.894145, 10.860014, 0), V(2.881382, 10.860433, 0), V(2.856299, 10.861256, 0), V(2.820195, 10.870544, 0), V(2.786241, 10.88462, 0), V(2.755271, 10.905368, 0), V(2.726335, 10.931102, 0), V(2.700334, 10.962835, 0), V(2.67713, 11.000257, 0), V(2.656253, 11.04322, 0), V(2.63762, 11.091782, 0), V(2.621744, 11.146103, 0), V(2.608611, 11.206121, 0), V(2.597674, 11.271762, 0), V(2.58888, 11.343082, 0), V(2.583092, 11.420025, 0), V(2.57907, 11.502629, 0), V(2.578758, 11.559577, 0), V(2.578596, 11.589054, 0)], [4, 1, 1, 1, 1, 1, 1, 1, 1, 1, 1, 1, 1, 1, 1, 1, 4], [0, 0.000038203, 0.000075083, 0.000111112, 0.000148002, 0.000186328, 0.000226926, 0.000270594, 0.000318146, 0.000370023, 0.000426456, 0.000487757, 0.000554231, 0.000626033, 0.000703256, 0.000785661, 0.000874083], False, 3, [1, 1, 1, 1, 1, 1, 1, 1, 1, 1, 1, 1, 1, 1, 1, 1, 1, 1, 1], False), False)
sketch4.addGeometry(Part.BSplineCurve([V(3.188352, 11.568475, 0), V(3.188147, 11.539889, 0), V(3.187749, 11.484473, 0), V(3.184295, 11.404147, 0), V(3.178722, 11.329391, 0), V(3.170732, 11.260227, 0), V(3.160728, 11.196424, 0), V(3.147674, 11.138223, 0), V(3.133097, 11.085395, 0), V(3.115923, 11.038227, 0), V(3.096639, 10.99632, 0), V(3.074719, 10.960051, 0), V(3.050309, 10.929387, 0), V(3.024048, 10.903695, 0), V(2.994783, 10.884085, 0), V(2.963205, 10.870094, 0), V(2.929417, 10.861397, 0), V(2.906011, 10.860479, 0), V(2.894145, 10.860014, 0)], [4, 1, 1, 1, 1, 1, 1, 1, 1, 1, 1, 1, 1, 1, 1, 1, 4], [0, 0.000085755, 0.000166239, 0.000241153, 0.000310594, 0.000375064, 0.000434794, 0.000489445, 0.000539359, 0.000585221, 0.000627639, 0.000666147, 0.000702535, 0.000737416, 0.000771196, 0.000805765, 0.000841307], False, 3, [1, 1, 1, 1, 1, 1, 1, 1, 1, 1, 1, 1, 1, 1, 1, 1, 1, 1, 1], False), False)
sketch4.addGeometry(Part.BSplineCurve([V(2.886142, 12.274649, 0), V(2.898389, 12.274193, 0), V(2.922425, 12.273299, 0), V(2.95708, 12.264566, 0), V(2.989441, 12.250618, 0), V(3.0193, 12.230971, 0), V(3.046735, 12.205685, 0), V(3.071463, 12.174826, 0), V(3.09392, 12.138681, 0), V(3.114206, 12.097236, 0), V(3.131546, 12.050028, 0), V(3.146475, 11.997332, 0), V(3.1601, 11.939439, 0), V(3.169875, 11.875803, 0), V(3.17837, 11.806811, 0), V(3.184384, 11.732183, 0), V(3.187723, 11.652094, 0), V(3.188138, 11.596933, 0), V(3.188352, 11.568475, 0)], [4, 1, 1, 1, 1, 1, 1, 1, 1, 1, 1, 1, 1, 1, 1, 1, 4], [0, 0.000036682, 0.000071991, 0.000106469, 0.000141985, 0.00017867, 0.000217952, 0.000260247, 0.000306095, 0.000356141, 0.000410897, 0.000470339, 0.000534433, 0.000603919, 0.000678863, 0.000758967, 0.00084434], False, 3, [1, 1, 1, 1, 1, 1, 1, 1, 1, 1, 1, 1, 1, 1, 1, 1, 1, 1, 1], False), False)
sketch4.addGeometry(Part.BSplineCurve([V(2.578596, 11.589054, 0), V(2.578752, 11.616753, 0), V(2.579054, 11.670401, 0), V(2.583163, 11.748038, 0), V(2.588556, 11.820409, 0), V(2.596804, 11.887464, 0), V(2.607924, 11.949099, 0), V(2.620695, 12.005567, 0), V(2.636006, 12.05667, 0), V(2.654617, 12.102211, 0), V(2.674339, 12.142967, 0), V(2.697416, 12.177948, 0), V(2.722765, 12.207796, 0), V(2.750572, 12.23248, 0), V(2.781166, 12.251453, 0), V(2.813994, 12.264917, 0), V(2.849272, 12.273237, 0), V(2.873646, 12.27417, 0), V(2.886142, 12.274649, 0)], [4, 1, 1, 1, 1, 1, 1, 1, 1, 1, 1, 1, 1, 1, 1, 1, 4], [0, 0.000083087, 0.000160924, 0.000233178, 0.000300773, 0.000363493, 0.000420993, 0.000474397, 0.000523298, 0.000568462, 0.000610002, 0.000648651, 0.000685649, 0.000721077, 0.000756109, 0.0007917, 0.000829143], False, 3, [1, 1, 1, 1, 1, 1, 1, 1, 1, 1, 1, 1, 1, 1, 1, 1, 1, 1, 1], False), False)
sketch4.addConstraint([
    Sketcher.Constraint("Block", 12),
    Sketcher.Constraint("Block", 13),
    Sketcher.Constraint("Block", 14),
    Sketcher.Constraint("Block", 15),
    Sketcher.Constraint("Block", 16),
    Sketcher.Constraint("Block", 17),
    Sketcher.Constraint("Block", 18),
    Sketcher.Constraint("Block", 19),
    Sketcher.Constraint("Block", 21),
    Sketcher.Constraint("Block", 22),
    Sketcher.Constraint("Block", 23),
    Sketcher.Constraint("Block", 24),
    Sketcher.Constraint("Block", 26),
    Sketcher.Constraint("Block", 27),
    Sketcher.Constraint("Block", 28),
    Sketcher.Constraint("Block", 29),
    Sketcher.Constraint("Block", 33),
    Sketcher.Constraint("Block", 34),
    Sketcher.Constraint("Block", 35),
    Sketcher.Constraint("Block", 36),
    Sketcher.Constraint("Block", 37),
    Sketcher.Constraint("Block", 38),
    Sketcher.Constraint("Block", 39),
    Sketcher.Constraint("Block", 40),
    Sketcher.Constraint("Block", 41),
    Sketcher.Constraint("Block", 42),
    Sketcher.Constraint("Block", 43),
    Sketcher.Constraint("Block", 44),
    Sketcher.Constraint("Coincident", 20, 2, 21, 2),
    Sketcher.Constraint("Coincident", 24, 1, 25, 1),
    Sketcher.Constraint("Coincident", 25, 2, 26, 2),
    Sketcher.Constraint("Coincident", 29, 1, 30, 1),
    Sketcher.Constraint("Coincident", 30, 2, 31, 1),
    Sketcher.Constraint("Coincident", 31, 2, 32, 1),
    Sketcher.Constraint("Coincident", 32, 2, 20, 1),
    Sketcher.Constraint("Horizontal", 0),
    Sketcher.Constraint("Vertical", 1),
    Sketcher.Constraint("Horizontal", 2),
    Sketcher.Constraint("Vertical", 3),
    Sketcher.Constraint("Horizontal", 4),
    Sketcher.Constraint("Vertical", 5),
    Sketcher.Constraint("Horizontal", 6),
    Sketcher.Constraint("Vertical", 7),
    Sketcher.Constraint("Horizontal", 8),
    Sketcher.Constraint("Vertical", 9),
    Sketcher.Constraint("Horizontal", 10),
    Sketcher.Constraint("Vertical", 11),
    Sketcher.Constraint("Horizontal", 20),
    Sketcher.Constraint("Vertical", 30),
    Sketcher.Constraint("Horizontal", 31),
    Sketcher.Constraint("Vertical", 32),
    Sketcher.Constraint("Horizontal", 2, 2, 5, 2),
    Sketcher.Constraint("Horizontal", 0, 2, 7, 2),
    Sketcher.Constraint("Horizontal", 11, 2, 30, 2),
    Sketcher.Constraint("Vertical", 5, 2, 8, 2),
    Sketcher.Constraint("Vertical", 3, 2, 10, 2),
    Sketcher.Constraint("Equal", 2, 6),
    Sketcher.Constraint("DistanceY", 1, 2, 1, 1, 2.0),
    Sketcher.Constraint("DistanceX", 4, 2, 4, 1, 0.878049),
    Sketcher.Constraint("DistanceX", 20, 2, 20, 1, 0.812881),
    Sketcher.Constraint("DistanceY", 3, 1, 3, 2, 0.804878),
    Sketcher.Constraint("DistanceY", 9, 2, 9, 1, 0.829268),
    Sketcher.Constraint("DistanceX", 0, 1, 0, 2, 0.414634),
    Sketcher.Constraint("DistanceY", 30, 1, 30, 2, 0.147866),
    Sketcher.Constraint("DistanceX", 6, 2, -1, 1, 3.03116),
])
sketch4.setExpression("Constraints[69]", "Params.sketch4_height")
pad2 = body.newObject("PartDesign::Pad", "Pad001")
pad2.Profile = sketch4
pad2.setExpression("Length", "Params.pad2_length")
pad2.Reversed = True

doc.recompute()
